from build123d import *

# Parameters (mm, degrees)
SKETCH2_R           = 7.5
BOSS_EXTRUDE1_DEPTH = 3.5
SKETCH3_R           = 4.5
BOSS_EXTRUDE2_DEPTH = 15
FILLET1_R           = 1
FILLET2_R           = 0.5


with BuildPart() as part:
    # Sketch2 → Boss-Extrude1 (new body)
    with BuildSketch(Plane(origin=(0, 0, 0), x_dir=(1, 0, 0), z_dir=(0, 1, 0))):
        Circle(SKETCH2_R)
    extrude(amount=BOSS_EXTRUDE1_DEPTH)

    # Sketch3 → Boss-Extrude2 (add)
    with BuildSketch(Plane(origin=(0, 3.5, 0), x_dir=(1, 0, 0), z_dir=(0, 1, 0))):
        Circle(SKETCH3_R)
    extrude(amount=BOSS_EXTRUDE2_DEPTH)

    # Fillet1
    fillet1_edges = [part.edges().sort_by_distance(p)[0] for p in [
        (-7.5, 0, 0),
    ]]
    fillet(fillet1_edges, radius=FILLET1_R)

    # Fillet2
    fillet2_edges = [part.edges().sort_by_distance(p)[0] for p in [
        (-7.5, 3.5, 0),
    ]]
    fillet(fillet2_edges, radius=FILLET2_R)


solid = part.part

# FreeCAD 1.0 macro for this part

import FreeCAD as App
import Part
import Sketcher

V = App.Vector


def edges_at(feature, points):
    """Names of the edges that pass closest to the given points."""
    edges = feature.Shape.Edges
    near = lambda p: min(range(len(edges)), key=lambda i: edges[i].distToShape(Part.Vertex(*p))[0])
    return sorted({f"Edge{near(p) + 1}" for p in points})

doc = App.newDocument("Part")
body = doc.addObject("PartDesign::Body", "Body")

sketch1 = body.newObject("Sketcher::SketchObject", "Sketch")
sketch1.AttachmentSupport = (doc.getObject("XZ_Plane"), [""])
sketch1.MapMode = "FlatFace"
sketch1.addGeometry(Part.Circle(V(0, 0, 0), V(0, 0, 1), 8), False)
sketch1.addConstraint(Sketcher.Constraint("Coincident", 0, 3, -1, 1))
sketch1.addConstraint(Sketcher.Constraint("Diameter", 0, 15.0))
pad1 = body.newObject("PartDesign::Pad", "Pad")
pad1.Profile = sketch1
pad1.Length = 3.5
pad1.Reversed = True

sketch2 = body.newObject("Sketcher::SketchObject", "Sketch001")
sketch2.AttachmentSupport = (doc.getObject("XZ_Plane"), [""])
sketch2.MapMode = "FlatFace"
sketch2.AttachmentOffset = App.Placement(V(0, 0, -3.5), App.Rotation())
sketch2.addGeometry(Part.Circle(V(0, 0, 0), V(0, 0, 1), 4.5), False)
sketch2.addConstraint(Sketcher.Constraint("Coincident", 0, 3, -1, 1))
sketch2.addConstraint(Sketcher.Constraint("Diameter", 0, 9.0))
pad2 = body.newObject("PartDesign::Pad", "Pad001")
pad2.Profile = sketch2
pad2.Length = 15
pad2.Reversed = True
doc.recompute()

fillet = body.newObject("PartDesign::Fillet", "Fillet")
fillet.Base = (pad2, edges_at(pad2, [(-7.5, 0, 0)]))
fillet.Radius = 1
doc.recompute()

fillet2 = body.newObject("PartDesign::Fillet", "Fillet001")
fillet2.Base = (fillet, edges_at(fillet, [(-7.5, 3.5, 0)]))
fillet2.Radius = 0.5

doc.recompute()
